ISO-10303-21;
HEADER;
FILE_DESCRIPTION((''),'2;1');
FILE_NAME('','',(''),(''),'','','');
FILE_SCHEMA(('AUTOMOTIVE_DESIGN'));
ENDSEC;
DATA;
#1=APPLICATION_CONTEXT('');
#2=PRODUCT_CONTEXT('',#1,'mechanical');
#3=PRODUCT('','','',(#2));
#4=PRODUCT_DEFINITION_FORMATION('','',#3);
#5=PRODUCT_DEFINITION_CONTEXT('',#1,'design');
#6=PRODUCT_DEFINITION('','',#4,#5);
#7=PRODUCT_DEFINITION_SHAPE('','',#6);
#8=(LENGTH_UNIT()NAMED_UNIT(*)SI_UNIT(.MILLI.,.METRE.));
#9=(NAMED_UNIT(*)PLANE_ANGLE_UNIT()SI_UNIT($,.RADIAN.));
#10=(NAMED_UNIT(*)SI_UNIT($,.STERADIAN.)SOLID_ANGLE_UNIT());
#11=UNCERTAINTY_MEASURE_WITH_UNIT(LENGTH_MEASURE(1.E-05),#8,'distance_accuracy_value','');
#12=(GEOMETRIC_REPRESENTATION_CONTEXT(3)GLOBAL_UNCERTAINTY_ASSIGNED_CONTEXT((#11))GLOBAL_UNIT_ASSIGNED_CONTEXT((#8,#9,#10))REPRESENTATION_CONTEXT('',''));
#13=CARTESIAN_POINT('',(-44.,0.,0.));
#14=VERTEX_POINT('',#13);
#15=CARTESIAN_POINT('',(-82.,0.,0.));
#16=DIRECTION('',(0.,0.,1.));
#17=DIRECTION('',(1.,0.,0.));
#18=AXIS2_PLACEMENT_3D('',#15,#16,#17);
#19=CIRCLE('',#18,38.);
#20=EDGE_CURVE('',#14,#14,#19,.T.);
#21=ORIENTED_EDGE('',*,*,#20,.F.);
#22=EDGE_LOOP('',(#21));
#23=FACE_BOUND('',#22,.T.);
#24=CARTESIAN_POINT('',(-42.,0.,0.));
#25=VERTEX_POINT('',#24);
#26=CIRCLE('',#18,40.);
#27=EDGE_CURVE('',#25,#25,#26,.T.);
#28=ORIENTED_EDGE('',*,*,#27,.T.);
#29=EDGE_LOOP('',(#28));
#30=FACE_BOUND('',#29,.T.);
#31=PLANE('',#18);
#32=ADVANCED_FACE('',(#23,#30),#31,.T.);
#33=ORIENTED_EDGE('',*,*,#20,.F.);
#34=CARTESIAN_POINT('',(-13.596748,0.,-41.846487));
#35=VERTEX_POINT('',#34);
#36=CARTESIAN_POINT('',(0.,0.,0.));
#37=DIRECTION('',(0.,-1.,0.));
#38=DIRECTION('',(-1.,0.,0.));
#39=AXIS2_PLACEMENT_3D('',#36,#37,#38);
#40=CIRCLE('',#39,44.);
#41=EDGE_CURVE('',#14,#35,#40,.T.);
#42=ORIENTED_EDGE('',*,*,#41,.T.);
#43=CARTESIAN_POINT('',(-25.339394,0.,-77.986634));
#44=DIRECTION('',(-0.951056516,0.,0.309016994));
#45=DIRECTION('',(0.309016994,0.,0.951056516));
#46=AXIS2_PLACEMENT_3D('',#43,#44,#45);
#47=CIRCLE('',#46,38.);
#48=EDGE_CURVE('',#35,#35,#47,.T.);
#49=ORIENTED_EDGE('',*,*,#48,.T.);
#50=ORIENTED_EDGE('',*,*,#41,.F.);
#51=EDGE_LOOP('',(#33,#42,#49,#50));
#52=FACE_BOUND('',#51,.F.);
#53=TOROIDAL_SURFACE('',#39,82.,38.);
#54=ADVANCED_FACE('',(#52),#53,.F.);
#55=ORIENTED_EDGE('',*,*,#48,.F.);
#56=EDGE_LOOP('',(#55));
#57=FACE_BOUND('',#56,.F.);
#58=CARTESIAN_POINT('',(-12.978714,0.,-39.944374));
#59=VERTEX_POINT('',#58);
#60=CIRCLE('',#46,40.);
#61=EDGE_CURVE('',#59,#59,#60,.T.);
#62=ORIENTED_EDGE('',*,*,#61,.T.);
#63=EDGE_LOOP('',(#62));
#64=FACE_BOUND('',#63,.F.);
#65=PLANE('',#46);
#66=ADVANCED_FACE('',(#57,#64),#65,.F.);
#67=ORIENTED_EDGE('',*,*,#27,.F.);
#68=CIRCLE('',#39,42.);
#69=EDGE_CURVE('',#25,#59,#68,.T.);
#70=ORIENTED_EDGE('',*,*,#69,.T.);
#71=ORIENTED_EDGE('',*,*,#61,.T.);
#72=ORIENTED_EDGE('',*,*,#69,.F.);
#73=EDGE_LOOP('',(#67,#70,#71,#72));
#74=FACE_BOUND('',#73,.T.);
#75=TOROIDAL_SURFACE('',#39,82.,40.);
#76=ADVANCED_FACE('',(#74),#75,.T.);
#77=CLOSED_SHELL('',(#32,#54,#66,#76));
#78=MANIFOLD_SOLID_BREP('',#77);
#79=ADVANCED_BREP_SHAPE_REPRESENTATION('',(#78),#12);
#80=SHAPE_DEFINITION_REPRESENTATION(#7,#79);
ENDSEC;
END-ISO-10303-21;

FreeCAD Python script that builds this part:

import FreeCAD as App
import Part
import Sketcher
from FreeCAD import Vector
Q = App.Units.Quantity

doc = App.newDocument("Part")
body = doc.addObject("PartDesign::Body", "Body")

# Sketch on XY plane
sketch1 = body.newObject("Sketcher::SketchObject", "Sketch")
sketch1.AttachmentSupport = (doc.getObject("XY_Plane"), [""])
sketch1.MapMode = "FlatFace"
sketch1.addGeometry([
    Part.Circle(Vector(-82, 0, 0), Vector(0, 0, 1), 40),
    Part.Circle(Vector(-82, 0, 0), Vector(0, 0, 1), 38),
], False)
sketch1.addConstraint([
    Sketcher.Constraint("Coincident", 1, 3, 0, 3),
    Sketcher.Constraint("PointOnObject", 0, 3, -1),
    Sketcher.Constraint("Diameter", 0, Q("80 mm")),
    Sketcher.Constraint("Diameter", 1, Q("76 mm")),
    Sketcher.Constraint("DistanceX", 0, 3, -1, 1, Q("82 mm")),
])
revolution = body.newObject("PartDesign::Revolution", "Revolution")
revolution.Profile = sketch1
revolution.ReferenceAxis = (sketch1, ["V_Axis"])
revolution.Angle = 72
revolution.Reversed = True

doc.recompute()
